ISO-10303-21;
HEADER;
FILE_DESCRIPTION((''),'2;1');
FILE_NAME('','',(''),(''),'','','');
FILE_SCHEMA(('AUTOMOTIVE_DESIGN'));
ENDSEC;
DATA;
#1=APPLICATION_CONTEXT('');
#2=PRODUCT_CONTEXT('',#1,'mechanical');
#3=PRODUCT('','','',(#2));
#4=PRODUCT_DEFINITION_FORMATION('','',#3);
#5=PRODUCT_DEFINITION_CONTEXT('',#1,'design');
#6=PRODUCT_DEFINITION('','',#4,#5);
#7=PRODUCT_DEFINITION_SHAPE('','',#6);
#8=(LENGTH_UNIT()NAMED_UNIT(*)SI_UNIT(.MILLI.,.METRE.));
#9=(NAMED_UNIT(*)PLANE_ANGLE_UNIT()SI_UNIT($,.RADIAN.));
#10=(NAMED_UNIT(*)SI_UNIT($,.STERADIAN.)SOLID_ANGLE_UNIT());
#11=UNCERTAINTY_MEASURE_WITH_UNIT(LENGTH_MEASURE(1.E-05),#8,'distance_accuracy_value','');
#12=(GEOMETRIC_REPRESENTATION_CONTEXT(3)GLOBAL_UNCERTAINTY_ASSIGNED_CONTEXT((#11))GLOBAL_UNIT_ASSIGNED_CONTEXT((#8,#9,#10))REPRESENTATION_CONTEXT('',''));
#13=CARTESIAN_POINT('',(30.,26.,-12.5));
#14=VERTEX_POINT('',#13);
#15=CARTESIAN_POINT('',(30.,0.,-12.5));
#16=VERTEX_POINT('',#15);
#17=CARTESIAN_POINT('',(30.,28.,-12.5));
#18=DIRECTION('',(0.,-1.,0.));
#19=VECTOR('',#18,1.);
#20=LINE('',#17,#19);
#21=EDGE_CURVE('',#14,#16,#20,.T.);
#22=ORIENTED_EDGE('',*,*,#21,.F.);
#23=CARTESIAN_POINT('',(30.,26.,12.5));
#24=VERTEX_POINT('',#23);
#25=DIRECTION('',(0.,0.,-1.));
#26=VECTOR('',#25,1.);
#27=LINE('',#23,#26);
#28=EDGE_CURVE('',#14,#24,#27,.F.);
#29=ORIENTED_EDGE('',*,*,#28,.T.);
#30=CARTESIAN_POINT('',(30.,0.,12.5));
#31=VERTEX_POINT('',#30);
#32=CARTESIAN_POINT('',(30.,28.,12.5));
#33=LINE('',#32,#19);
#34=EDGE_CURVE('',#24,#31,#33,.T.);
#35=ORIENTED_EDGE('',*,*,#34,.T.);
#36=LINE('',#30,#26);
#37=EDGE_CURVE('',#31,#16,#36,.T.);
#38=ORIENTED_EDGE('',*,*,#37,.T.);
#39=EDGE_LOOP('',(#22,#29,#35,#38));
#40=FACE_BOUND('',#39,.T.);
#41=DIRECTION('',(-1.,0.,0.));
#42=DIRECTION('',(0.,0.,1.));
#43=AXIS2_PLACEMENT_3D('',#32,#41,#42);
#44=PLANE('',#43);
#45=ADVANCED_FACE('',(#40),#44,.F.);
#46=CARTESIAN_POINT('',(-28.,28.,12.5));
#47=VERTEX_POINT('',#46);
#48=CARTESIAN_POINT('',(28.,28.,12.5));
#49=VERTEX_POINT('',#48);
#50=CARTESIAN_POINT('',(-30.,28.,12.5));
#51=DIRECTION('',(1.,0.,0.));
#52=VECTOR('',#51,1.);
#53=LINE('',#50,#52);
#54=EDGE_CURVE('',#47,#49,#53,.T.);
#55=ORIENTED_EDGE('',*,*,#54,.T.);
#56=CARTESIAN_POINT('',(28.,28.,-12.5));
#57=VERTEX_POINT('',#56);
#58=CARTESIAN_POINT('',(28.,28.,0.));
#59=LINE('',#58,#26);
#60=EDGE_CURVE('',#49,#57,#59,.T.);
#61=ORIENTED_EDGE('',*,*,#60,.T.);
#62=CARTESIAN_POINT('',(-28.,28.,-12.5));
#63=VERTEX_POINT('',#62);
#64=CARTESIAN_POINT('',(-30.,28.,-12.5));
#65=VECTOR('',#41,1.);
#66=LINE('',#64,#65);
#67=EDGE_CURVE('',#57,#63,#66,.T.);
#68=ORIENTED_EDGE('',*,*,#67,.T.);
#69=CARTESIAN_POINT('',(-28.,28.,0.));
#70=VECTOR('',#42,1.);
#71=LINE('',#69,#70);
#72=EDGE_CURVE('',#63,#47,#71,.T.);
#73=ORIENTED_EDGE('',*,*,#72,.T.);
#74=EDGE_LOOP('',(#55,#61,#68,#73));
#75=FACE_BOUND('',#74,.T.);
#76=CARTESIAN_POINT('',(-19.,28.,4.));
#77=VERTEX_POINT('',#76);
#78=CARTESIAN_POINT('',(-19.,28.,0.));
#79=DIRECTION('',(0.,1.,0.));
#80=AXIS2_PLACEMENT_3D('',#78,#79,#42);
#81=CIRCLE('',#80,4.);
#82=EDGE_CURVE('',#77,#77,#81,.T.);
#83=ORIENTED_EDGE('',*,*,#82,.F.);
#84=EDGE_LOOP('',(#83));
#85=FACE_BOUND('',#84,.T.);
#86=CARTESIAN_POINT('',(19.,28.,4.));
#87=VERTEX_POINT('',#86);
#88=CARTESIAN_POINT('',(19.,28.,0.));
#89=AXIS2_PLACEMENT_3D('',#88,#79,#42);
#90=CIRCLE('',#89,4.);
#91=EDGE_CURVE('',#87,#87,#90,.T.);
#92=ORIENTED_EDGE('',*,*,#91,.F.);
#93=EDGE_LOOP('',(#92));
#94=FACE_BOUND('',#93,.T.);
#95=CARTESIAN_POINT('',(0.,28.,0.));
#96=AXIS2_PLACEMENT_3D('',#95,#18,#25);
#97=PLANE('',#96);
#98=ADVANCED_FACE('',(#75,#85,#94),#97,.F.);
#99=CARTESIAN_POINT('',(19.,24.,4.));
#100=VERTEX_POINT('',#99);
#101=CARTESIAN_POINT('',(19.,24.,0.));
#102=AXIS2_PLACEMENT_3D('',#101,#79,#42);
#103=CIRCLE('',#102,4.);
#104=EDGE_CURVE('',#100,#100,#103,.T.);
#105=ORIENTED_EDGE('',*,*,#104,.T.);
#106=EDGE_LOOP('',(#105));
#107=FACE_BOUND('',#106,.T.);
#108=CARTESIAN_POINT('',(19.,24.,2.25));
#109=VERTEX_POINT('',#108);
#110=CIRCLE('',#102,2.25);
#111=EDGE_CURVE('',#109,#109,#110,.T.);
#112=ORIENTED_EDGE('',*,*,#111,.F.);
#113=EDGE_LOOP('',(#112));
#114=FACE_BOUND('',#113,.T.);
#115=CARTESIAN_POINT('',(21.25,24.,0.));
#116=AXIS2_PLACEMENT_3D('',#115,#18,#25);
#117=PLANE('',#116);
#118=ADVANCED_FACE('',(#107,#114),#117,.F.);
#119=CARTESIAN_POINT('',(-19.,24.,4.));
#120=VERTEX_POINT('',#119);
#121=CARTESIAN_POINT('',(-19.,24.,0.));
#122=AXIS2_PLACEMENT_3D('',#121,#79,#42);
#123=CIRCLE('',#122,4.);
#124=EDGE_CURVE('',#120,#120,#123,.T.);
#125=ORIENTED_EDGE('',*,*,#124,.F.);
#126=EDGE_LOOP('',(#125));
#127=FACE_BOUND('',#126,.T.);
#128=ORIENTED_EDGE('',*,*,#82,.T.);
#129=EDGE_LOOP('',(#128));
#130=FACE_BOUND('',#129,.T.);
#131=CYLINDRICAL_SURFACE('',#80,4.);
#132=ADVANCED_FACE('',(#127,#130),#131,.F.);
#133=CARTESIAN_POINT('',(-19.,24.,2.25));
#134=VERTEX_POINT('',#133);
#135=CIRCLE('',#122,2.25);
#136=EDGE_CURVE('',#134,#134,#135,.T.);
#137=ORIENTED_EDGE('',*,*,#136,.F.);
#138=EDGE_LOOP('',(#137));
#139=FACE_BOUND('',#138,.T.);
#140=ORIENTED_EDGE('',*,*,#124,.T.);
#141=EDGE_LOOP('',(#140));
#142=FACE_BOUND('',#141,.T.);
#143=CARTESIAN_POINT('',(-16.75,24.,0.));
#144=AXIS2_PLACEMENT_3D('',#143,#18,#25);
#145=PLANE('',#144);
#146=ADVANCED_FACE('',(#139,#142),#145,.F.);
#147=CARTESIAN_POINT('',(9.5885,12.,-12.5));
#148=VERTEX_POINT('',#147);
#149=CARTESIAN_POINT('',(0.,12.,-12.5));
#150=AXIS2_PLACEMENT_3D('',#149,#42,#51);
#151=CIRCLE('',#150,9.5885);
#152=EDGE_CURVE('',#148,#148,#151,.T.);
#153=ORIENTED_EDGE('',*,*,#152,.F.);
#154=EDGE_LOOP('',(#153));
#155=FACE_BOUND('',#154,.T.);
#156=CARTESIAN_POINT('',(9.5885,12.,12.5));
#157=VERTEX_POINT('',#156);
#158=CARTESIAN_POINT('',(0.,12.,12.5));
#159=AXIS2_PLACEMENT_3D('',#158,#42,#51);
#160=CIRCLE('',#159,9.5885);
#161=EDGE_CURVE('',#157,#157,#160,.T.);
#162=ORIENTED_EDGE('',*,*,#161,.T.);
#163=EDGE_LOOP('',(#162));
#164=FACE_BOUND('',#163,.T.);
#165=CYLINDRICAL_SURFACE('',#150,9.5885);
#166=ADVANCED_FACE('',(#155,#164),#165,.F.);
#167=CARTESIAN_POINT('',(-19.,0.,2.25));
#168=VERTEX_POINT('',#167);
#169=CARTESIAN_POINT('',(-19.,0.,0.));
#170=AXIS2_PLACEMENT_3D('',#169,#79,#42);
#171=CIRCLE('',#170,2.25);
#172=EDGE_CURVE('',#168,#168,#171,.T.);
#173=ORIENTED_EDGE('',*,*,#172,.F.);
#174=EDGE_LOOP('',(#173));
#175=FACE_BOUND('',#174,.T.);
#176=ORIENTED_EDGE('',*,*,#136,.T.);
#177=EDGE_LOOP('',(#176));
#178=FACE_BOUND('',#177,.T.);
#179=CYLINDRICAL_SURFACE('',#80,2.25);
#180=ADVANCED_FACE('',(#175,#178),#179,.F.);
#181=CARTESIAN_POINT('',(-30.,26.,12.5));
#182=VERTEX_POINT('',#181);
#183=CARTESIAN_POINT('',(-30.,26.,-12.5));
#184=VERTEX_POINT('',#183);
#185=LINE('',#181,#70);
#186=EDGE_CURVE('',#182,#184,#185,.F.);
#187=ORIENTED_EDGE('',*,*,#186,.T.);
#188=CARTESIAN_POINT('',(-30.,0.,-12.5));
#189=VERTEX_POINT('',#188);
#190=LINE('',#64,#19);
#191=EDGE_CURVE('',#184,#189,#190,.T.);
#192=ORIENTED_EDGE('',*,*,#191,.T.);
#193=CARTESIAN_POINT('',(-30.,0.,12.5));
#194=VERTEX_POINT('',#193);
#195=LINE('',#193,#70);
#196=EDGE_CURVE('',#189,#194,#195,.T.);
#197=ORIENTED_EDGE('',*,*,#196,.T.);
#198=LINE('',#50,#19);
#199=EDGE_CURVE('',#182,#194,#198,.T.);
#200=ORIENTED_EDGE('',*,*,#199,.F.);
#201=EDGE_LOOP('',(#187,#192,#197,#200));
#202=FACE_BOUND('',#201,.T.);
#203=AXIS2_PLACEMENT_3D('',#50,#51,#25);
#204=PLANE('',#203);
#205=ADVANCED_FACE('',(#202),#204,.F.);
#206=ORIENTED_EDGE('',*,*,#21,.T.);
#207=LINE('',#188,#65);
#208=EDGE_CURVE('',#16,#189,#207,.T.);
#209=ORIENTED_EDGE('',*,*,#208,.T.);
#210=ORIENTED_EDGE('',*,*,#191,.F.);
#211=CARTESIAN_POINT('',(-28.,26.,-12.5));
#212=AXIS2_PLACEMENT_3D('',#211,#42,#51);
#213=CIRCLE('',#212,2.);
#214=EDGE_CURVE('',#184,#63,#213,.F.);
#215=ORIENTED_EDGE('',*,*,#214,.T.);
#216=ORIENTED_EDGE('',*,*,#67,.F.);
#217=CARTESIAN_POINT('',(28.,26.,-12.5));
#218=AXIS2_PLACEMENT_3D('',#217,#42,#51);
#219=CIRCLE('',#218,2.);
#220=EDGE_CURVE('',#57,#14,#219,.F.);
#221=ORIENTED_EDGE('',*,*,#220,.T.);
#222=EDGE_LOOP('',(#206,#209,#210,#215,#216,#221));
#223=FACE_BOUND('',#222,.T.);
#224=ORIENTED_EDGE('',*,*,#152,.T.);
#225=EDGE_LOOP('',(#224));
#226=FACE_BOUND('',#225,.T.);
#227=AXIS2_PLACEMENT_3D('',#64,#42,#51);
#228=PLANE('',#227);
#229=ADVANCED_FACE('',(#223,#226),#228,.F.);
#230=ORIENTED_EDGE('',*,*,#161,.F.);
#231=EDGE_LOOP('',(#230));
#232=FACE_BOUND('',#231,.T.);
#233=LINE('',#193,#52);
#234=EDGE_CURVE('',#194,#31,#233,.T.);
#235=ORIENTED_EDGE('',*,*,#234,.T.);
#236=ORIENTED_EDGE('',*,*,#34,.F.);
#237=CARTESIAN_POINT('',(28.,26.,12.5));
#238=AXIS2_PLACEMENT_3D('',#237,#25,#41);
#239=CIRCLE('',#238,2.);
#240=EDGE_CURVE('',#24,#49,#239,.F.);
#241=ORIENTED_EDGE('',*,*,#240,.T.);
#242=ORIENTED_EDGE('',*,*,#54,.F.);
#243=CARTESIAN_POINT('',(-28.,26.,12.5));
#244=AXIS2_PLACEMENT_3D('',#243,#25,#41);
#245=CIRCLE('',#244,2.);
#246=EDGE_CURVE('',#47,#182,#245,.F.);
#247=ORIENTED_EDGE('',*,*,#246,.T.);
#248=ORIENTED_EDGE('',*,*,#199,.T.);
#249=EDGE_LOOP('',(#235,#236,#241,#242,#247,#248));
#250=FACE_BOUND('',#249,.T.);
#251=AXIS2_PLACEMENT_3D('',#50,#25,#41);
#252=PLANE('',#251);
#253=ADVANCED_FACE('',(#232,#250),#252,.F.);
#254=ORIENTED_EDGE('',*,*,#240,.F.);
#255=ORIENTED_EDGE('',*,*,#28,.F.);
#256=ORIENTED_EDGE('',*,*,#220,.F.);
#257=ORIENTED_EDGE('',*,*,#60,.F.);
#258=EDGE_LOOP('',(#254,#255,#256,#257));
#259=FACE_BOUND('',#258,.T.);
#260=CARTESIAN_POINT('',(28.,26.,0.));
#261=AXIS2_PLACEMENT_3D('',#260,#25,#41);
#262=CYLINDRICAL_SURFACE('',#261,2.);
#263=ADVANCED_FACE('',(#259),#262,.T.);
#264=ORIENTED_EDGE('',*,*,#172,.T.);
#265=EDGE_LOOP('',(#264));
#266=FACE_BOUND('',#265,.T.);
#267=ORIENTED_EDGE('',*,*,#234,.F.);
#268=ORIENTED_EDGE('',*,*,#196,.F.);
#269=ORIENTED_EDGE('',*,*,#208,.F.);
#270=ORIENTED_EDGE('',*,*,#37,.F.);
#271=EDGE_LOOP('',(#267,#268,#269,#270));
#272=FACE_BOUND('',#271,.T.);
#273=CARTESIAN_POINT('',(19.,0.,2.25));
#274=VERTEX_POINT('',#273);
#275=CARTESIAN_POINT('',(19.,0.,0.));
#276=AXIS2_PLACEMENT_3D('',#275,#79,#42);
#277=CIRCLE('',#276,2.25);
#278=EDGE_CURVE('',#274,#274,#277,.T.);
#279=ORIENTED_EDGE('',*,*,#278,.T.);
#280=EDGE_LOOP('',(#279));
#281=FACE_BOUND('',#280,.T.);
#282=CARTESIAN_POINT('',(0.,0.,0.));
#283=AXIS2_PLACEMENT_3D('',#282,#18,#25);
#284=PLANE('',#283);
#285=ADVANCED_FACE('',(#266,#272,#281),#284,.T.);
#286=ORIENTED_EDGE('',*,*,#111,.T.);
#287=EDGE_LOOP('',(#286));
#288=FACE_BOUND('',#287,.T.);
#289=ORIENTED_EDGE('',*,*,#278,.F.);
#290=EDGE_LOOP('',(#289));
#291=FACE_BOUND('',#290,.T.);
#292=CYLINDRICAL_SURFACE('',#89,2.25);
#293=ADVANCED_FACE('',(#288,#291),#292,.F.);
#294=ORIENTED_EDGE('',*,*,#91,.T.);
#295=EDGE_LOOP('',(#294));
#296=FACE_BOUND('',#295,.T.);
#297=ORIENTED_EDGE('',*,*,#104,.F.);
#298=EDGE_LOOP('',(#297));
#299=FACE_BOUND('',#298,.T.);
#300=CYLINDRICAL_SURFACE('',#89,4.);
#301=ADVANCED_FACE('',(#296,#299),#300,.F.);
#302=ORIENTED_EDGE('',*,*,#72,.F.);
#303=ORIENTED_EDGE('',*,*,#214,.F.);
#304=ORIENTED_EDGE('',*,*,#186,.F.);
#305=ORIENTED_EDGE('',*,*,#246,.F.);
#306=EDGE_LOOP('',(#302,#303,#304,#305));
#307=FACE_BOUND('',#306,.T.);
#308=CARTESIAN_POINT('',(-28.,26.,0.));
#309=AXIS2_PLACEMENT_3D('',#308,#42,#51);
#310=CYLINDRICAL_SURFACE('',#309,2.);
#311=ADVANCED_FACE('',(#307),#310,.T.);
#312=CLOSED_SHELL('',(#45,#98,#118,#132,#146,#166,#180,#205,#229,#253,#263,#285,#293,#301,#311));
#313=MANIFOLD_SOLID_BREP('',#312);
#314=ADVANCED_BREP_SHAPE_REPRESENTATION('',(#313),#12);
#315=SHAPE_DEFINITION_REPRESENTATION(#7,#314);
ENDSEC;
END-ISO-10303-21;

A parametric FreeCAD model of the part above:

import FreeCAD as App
import Part
import Sketcher

V = App.Vector


def edges_at(feature, points):
    """Names of the edges that pass closest to the given points."""
    edges = feature.Shape.Edges
    near = lambda p: min(range(len(edges)), key=lambda i: edges[i].distToShape(Part.Vertex(*p))[0])
    return sorted({f"Edge{near(p) + 1}" for p in points})

doc = App.newDocument("Part")
params = doc.addObject("Spreadsheet::Sheet", "Params")
for row, (alias, value) in enumerate([
    ("sketch1_width", "60 mm"),
    ("sketch1_height", "25 mm"),
    ("pad1_length", "28 mm"),
    ("sketch3_diameter", "4.5 mm"),
    ("hole_diameter", "4.5 mm"),
    ("hole_cbore_diameter", "8 mm"),
    ("hole_cbore_depth", "4 mm"),
    ("fillet_radius", "2 mm"),
], start=1):
    params.set(f"A{row}", alias)
    params.set(f"B{row}", "=" + value)
    params.setAlias(f"B{row}", alias)

body = doc.addObject("PartDesign::Body", "Body")

# Sketch on XZ plane
sketch1 = doc.addObject("Sketcher::SketchObject", "Sketch")
body.addObject(sketch1)
sketch1.AttachmentSupport = (doc.XZ_Plane, [""])
sketch1.MapMode = "FlatFace"
sketch1.addGeometry(Part.LineSegment(V(-30, -12, 0), V(-30, 12, 0)), False)
sketch1.addGeometry(Part.LineSegment(V(-30, 12, 0), V(30, 12, 0)), False)
sketch1.addGeometry(Part.LineSegment(V(30, 12, 0), V(30, -12, 0)), False)
sketch1.addGeometry(Part.LineSegment(V(30, -12, 0), V(-30, -12, 0)), False)
sketch1.addConstraint(Sketcher.Constraint("Coincident", 0, 2, 1, 1))
sketch1.addConstraint(Sketcher.Constraint("Coincident", 1, 2, 2, 1))
sketch1.addConstraint(Sketcher.Constraint("Coincident", 2, 2, 3, 1))
sketch1.addConstraint(Sketcher.Constraint("Coincident", 3, 2, 0, 1))
sketch1.addConstraint(Sketcher.Constraint("Vertical", 0))
sketch1.addConstraint(Sketcher.Constraint("Horizontal", 1))
sketch1.addConstraint(Sketcher.Constraint("Vertical", 2))
sketch1.addConstraint(Sketcher.Constraint("Horizontal", 3))
sketch1.addConstraint(Sketcher.Constraint("Symmetric", 0, 2, 2, 2, -1, 1))
sketch1.addConstraint(Sketcher.Constraint("DistanceX", 1, 1, 1, 2, 60.0))
sketch1.addConstraint(Sketcher.Constraint("DistanceY", 0, 1, 0, 2, 25.0))
sketch1.setExpression("Constraints[9]", "Params.sketch1_width")
sketch1.setExpression("Constraints[10]", "Params.sketch1_height")
pad1 = doc.addObject("PartDesign::Pad", "Pad")
body.addObject(pad1)
pad1.Profile = sketch1
pad1.setExpression("Length", "Params.pad1_length")
pad1.Reversed = True

# Sketch on XY plane
sketch2 = doc.addObject("Sketcher::SketchObject", "Sketch001")
body.addObject(sketch2)
sketch2.AttachmentSupport = (doc.XY_Plane, [""])
sketch2.MapMode = "FlatFace"
sketch2.AttachmentOffset = App.Placement(V(0, 0, 12.5), App.Rotation())
sketch2.addGeometry(Part.Circle(V(0, 12, 0), V(0, 0, 1), 10), False)
sketch2.addConstraint(Sketcher.Constraint("PointOnObject", 0, 3, -2))
sketch2.addConstraint(Sketcher.Constraint("Diameter", 0, 19.177))
sketch2.addConstraint(Sketcher.Constraint("DistanceY", -1, 1, 0, 3, 12.0))
pocket1 = doc.addObject("PartDesign::Pocket", "Pocket")
body.addObject(pocket1)
pocket1.Profile = sketch2
pocket1.Type = "ThroughAll"

# Sketch on XZ plane
sketch3 = doc.addObject("Sketcher::SketchObject", "Sketch002")
body.addObject(sketch3)
sketch3.AttachmentSupport = (doc.XZ_Plane, [""])
sketch3.MapMode = "FlatFace"
sketch3.AttachmentOffset = App.Placement(V(0, 0, -28), App.Rotation())
sketch3.addGeometry(Part.Circle(V(-19, 0, 0), V(0, 0, 1), 2.2), False)
sketch3.addGeometry(Part.Circle(V(19, 0, 0), V(0, 0, 1), 2.2), False)
sketch3.addConstraint(Sketcher.Constraint("Equal", 0, 1))
sketch3.addConstraint(Sketcher.Constraint("Symmetric", 0, 3, 1, 3, -1, 1))
sketch3.addConstraint(Sketcher.Constraint("PointOnObject", 0, 3, -1))
sketch3.addConstraint(Sketcher.Constraint("Diameter", 0, 4.5))
sketch3.addConstraint(Sketcher.Constraint("DistanceX", 0, 3, -1, 1, 19.0))
sketch3.setExpression("Constraints[3]", "Params.sketch3_diameter")
doc.recompute()
hole = doc.addObject("PartDesign::Hole", "Hole")
body.addObject(hole)
hole.Profile = sketch3
hole.ThreadType = "None"
hole.setExpression("Diameter", "Params.hole_diameter")
hole.DepthType = "ThroughAll"
hole.HoleCutType = "Counterbore"
hole.setExpression("HoleCutDiameter", "Params.hole_cbore_diameter")
hole.setExpression("HoleCutDepth", "Params.hole_cbore_depth")
hole.Reversed = True
doc.recompute()

fillet = doc.addObject("PartDesign::Fillet", "Fillet")
body.addObject(fillet)
fillet.Base = (hole, edges_at(hole, [(-30, 28, 0), (30, 28, 0)]))
fillet.setExpression("Radius", "Params.fillet_radius")

doc.recompute()
